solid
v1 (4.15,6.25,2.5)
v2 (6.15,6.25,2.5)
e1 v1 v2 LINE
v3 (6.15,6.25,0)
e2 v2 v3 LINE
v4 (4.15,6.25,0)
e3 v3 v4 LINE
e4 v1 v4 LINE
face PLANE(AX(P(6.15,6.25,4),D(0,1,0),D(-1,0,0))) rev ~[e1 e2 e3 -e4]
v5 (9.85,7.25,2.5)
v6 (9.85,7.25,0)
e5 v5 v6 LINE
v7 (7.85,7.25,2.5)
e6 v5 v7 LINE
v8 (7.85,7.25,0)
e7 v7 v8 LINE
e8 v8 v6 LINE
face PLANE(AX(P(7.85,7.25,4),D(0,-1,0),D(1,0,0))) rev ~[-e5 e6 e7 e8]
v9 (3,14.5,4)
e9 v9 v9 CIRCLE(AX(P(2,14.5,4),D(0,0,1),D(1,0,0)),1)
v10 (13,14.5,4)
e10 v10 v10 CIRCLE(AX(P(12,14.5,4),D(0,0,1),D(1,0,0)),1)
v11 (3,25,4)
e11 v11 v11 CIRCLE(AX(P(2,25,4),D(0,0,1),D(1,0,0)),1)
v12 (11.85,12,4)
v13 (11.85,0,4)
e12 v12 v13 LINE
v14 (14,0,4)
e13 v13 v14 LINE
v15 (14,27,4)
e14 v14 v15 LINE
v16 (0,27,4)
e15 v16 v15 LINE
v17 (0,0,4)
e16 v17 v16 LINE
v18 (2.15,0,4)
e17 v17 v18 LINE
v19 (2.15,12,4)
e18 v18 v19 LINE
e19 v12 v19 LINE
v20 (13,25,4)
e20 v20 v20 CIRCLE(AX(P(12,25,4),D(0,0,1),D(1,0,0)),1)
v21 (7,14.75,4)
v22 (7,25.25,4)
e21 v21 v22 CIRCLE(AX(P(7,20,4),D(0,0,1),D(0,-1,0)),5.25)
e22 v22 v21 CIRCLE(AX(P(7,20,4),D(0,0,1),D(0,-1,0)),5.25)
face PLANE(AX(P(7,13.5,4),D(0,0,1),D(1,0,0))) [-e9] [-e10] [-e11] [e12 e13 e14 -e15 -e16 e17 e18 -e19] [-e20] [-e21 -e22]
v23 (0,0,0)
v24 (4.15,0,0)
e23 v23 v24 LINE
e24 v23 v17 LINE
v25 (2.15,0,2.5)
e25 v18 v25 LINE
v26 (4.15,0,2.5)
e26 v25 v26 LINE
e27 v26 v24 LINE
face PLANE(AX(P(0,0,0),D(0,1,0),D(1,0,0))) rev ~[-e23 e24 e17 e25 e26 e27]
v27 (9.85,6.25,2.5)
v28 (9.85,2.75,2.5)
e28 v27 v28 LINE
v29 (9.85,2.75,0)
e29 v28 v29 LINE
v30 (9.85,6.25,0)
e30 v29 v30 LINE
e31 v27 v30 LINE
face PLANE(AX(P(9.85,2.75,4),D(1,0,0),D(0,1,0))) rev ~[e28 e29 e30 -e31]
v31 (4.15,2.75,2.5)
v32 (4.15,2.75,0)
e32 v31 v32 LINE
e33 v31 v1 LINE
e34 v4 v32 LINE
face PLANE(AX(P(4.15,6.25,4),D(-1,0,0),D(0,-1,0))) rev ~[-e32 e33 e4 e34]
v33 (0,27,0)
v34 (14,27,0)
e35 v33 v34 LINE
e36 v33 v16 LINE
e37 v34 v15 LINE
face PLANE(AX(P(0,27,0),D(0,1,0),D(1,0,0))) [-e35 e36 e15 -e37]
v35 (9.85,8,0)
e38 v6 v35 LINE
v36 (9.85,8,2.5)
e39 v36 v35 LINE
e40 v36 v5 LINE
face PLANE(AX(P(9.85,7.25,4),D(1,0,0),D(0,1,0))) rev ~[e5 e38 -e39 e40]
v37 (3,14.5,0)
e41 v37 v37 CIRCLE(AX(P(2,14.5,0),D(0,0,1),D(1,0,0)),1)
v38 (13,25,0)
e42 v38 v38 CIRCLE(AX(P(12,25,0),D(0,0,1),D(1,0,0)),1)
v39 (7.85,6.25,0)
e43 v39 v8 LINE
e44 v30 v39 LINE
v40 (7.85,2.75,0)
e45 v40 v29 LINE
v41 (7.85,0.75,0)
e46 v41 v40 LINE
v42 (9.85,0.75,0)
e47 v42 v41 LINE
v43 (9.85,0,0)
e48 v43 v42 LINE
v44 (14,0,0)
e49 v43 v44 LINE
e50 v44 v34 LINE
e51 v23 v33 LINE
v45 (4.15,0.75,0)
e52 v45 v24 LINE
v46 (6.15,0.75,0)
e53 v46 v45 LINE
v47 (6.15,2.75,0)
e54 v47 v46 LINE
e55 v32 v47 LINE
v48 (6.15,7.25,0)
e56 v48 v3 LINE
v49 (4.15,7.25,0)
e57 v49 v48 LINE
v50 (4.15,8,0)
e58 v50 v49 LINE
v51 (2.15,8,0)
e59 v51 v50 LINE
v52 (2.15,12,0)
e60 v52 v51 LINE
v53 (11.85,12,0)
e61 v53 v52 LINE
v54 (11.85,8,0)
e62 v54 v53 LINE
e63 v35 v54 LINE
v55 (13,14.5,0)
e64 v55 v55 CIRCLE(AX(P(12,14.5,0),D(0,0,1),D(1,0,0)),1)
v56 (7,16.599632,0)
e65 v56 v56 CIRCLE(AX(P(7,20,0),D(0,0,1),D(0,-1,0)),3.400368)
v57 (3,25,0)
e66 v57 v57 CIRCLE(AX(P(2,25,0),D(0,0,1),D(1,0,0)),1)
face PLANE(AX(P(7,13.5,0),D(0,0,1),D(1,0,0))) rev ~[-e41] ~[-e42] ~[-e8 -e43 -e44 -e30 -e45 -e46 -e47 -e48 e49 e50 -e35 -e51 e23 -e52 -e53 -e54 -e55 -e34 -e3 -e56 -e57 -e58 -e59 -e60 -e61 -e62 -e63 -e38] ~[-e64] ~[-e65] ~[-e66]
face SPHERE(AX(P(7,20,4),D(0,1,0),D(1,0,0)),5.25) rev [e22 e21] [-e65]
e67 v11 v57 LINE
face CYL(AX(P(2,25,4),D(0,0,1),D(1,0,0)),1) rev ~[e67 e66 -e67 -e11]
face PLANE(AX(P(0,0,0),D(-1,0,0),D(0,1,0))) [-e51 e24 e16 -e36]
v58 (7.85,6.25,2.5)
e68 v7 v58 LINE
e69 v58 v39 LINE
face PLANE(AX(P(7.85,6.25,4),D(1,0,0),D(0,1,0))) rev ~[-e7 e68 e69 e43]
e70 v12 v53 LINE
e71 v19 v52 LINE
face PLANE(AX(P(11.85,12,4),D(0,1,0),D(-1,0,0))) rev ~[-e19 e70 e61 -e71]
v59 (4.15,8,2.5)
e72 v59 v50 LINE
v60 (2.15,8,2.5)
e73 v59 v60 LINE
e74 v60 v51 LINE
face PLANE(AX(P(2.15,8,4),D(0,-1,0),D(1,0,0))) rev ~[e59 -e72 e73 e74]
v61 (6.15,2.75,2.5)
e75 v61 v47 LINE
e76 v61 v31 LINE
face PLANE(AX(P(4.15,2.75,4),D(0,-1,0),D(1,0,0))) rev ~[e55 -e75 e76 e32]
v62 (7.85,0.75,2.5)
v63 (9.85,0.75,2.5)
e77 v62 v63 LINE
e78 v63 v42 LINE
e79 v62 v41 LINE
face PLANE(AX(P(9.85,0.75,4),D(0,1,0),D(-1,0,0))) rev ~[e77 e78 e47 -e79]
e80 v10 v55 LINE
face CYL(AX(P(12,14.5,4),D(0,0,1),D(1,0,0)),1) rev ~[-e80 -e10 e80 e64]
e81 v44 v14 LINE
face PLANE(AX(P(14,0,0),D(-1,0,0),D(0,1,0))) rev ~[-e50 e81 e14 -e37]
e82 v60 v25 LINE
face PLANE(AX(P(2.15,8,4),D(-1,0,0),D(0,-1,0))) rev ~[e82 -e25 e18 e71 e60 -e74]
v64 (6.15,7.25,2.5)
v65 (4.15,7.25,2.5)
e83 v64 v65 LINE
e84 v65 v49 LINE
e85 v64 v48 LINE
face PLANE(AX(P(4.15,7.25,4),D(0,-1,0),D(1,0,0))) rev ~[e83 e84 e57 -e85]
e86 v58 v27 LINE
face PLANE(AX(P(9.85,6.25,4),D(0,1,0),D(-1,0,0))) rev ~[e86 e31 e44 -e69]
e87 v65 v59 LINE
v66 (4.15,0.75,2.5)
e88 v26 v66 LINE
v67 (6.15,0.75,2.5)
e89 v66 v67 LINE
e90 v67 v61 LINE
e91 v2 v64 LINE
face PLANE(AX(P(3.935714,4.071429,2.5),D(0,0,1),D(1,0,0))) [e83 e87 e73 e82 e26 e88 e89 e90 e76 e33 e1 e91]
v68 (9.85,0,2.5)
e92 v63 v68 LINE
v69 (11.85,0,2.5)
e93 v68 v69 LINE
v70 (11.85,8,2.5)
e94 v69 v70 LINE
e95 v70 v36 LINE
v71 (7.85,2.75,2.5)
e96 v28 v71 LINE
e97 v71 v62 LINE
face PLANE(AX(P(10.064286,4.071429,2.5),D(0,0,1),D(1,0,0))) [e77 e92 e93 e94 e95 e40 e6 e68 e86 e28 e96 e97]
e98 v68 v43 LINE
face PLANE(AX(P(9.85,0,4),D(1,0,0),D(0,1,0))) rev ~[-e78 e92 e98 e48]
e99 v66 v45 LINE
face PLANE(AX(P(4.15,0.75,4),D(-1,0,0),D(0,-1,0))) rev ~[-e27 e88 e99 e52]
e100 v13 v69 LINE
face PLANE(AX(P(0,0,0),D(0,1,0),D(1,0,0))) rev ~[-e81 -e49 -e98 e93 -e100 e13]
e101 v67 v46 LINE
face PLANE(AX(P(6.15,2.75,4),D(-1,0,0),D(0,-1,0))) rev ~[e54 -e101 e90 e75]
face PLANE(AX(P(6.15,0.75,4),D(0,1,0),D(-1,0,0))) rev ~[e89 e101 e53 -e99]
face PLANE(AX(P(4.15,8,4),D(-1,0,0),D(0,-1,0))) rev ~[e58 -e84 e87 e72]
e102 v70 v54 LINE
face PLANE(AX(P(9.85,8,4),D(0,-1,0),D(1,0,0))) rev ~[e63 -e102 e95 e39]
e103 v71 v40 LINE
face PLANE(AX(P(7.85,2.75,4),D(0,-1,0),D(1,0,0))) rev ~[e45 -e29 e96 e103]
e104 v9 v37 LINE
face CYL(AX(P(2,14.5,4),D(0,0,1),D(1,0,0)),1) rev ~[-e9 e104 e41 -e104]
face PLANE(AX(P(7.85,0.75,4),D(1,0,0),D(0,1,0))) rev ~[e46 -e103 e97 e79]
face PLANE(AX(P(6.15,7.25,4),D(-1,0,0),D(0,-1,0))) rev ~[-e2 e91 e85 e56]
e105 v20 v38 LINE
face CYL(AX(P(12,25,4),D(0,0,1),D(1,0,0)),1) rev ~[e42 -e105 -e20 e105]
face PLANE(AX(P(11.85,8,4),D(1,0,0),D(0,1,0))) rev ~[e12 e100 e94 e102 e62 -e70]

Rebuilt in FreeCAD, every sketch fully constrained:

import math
import FreeCAD as App
import Part
import Sketcher
Q = App.Units.Quantity

doc = App.newDocument("Part")
params = doc.addObject("Spreadsheet::Sheet", "Params")
for row, (alias, value) in enumerate([
    ("sketch1_width", "14 mm"),
    ("sketch1_height", "27 mm"),
    ("pad1_length", "4 mm"),
    ("sketch2_radius", "5.25 mm"),
    ("groove_angle", "360 deg"),
    ("sketch3_diameter", "2 mm"),
    ("pocket1_length", "4 mm"),
    ("sketch4_width", "2 mm"),
    ("sketch4_height", "4 mm"),
    ("sketch4_height2", "1 mm"),
    ("sketch4_width2", "5.7 mm"),
    ("sketch4_height3", "3.5 mm"),
    ("pocket2_length", "4 mm"),
    ("sketch5_width", "2 mm"),
    ("sketch5_height", "8 mm"),
    ("sketch5_height2", "1 mm"),
    ("sketch5_height3", "3.5 mm"),
    ("pocket3_length", "1.5 mm"),
], start=1):
    params.set(f"A{row}", alias)
    params.set(f"B{row}", "=" + value)
    params.setAlias(f"B{row}", alias)

body = doc.addObject("PartDesign::Body", "Body")

# Sketch on XY plane
sketch1 = body.newObject("Sketcher::SketchObject", "Sketch")
sketch1.AttachmentSupport = (doc.getObject("XY_Plane"), [""])
sketch1.MapMode = "FlatFace"
sketch1.addGeometry([
    Part.LineSegment(App.Vector(0, 27, 0), App.Vector(0, 0, 0)),
    Part.LineSegment(App.Vector(0, 0, 0), App.Vector(14, 0, 0)),
    Part.LineSegment(App.Vector(14, 0, 0), App.Vector(14, 27, 0)),
    Part.LineSegment(App.Vector(14, 27, 0), App.Vector(0, 27, 0)),
], False)
sketch1.addConstraint([
    Sketcher.Constraint("Coincident", 0, 2, 1, 1),
    Sketcher.Constraint("Coincident", 1, 2, 2, 1),
    Sketcher.Constraint("Coincident", 2, 2, 3, 1),
    Sketcher.Constraint("Coincident", 3, 2, 0, 1),
    Sketcher.Constraint("Vertical", 0),
    Sketcher.Constraint("Horizontal", 1),
    Sketcher.Constraint("Vertical", 2),
    Sketcher.Constraint("Horizontal", 3),
    Sketcher.Constraint("Coincident", 0, 2, -1, 1),
    Sketcher.Constraint("DistanceX", 1, 1, 1, 2, Q("14 mm")),
    Sketcher.Constraint("DistanceY", 0, 2, 0, 1, Q("27 mm")),
])
sketch1.setExpression("Constraints[9]", "Params.sketch1_width")
sketch1.setExpression("Constraints[10]", "Params.sketch1_height")
pad1 = body.newObject("PartDesign::Pad", "Pad")
pad1.Profile = sketch1
pad1.setExpression("Length", "Params.pad1_length")

# Sketch on XY plane
sketch2 = body.newObject("Sketcher::SketchObject", "Sketch001")
sketch2.AttachmentSupport = (doc.getObject("XY_Plane"), [""])
sketch2.MapMode = "FlatFace"
sketch2.AttachmentOffset = App.Placement(App.Vector(0, 0, 4), App.Rotation())
sketch2.addGeometry([
    Part.ArcOfCircle(Part.Circle(App.Vector(7, 20, 0), App.Vector(0, 0, 1), 5), math.radians(-90), math.radians(90)),
    Part.LineSegment(App.Vector(7, 25, 0), App.Vector(7, 15, 0)),
], False)
sketch2.addGeometry(Part.LineSegment(App.Vector(7, 25, 0), App.Vector(7, 15, 0)), True)  # axis
sketch2.addConstraint([
    Sketcher.Constraint("Coincident", 0, 1, 1, 2),
    Sketcher.Constraint("Coincident", 1, 1, 0, 2),
    Sketcher.Constraint("Vertical", 1),
    Sketcher.Constraint("Vertical", 2),
    Sketcher.Constraint("Coincident", 2, 1, 1, 1),
    Sketcher.Constraint("Equal", 1, 2),
    Sketcher.Constraint("Radius", 0, Q("5.25 mm")),
    Sketcher.Constraint("DistanceX", -1, 1, 0, 3, Q("7 mm")),
    Sketcher.Constraint("DistanceY", -1, 1, 0, 3, Q("20 mm")),
    Sketcher.Constraint("DistanceX", -1, 1, 0, 1, Q("7 mm")),
])
sketch2.setExpression("Constraints[6]", "Params.sketch2_radius")
groove = body.newObject("PartDesign::Groove", "Groove")
groove.Profile = sketch2
groove.ReferenceAxis = (sketch2, ["Axis0"])
groove.setExpression("Angle", "Params.groove_angle")

# Sketch on XY plane
sketch3 = body.newObject("Sketcher::SketchObject", "Sketch002")
sketch3.AttachmentSupport = (doc.getObject("XY_Plane"), [""])
sketch3.MapMode = "FlatFace"
sketch3.AttachmentOffset = App.Placement(App.Vector(0, 0, 4), App.Rotation())
sketch3.addGeometry([
    Part.Circle(App.Vector(2, 25, 0), App.Vector(0, 0, 1), 1),
    Part.Circle(App.Vector(12, 14.5, 0), App.Vector(0, 0, 1), 1),
    Part.Circle(App.Vector(12, 25, 0), App.Vector(0, 0, 1), 1),
    Part.Circle(App.Vector(2, 14.5, 0), App.Vector(0, 0, 1), 1),
], False)
sketch3.addConstraint([
    Sketcher.Constraint("Equal", 0, 1),
    Sketcher.Constraint("Equal", 1, 2),
    Sketcher.Constraint("Equal", 2, 3),
    Sketcher.Constraint("Horizontal", 0, 3, 2, 3),
    Sketcher.Constraint("Horizontal", 1, 3, 3, 3),
    Sketcher.Constraint("Vertical", 1, 3, 2, 3),
    Sketcher.Constraint("Vertical", 0, 3, 3, 3),
    Sketcher.Constraint("Diameter", 0, Q("2 mm")),
    Sketcher.Constraint("DistanceX", -1, 1, 0, 3, Q("2 mm")),
    Sketcher.Constraint("DistanceY", -1, 1, 0, 3, Q("25 mm")),
    Sketcher.Constraint("DistanceX", -1, 1, 1, 3, Q("12 mm")),
    Sketcher.Constraint("DistanceY", -1, 1, 1, 3, Q("14.5 mm")),
])
sketch3.setExpression("Constraints[7]", "Params.sketch3_diameter")
pocket1 = body.newObject("PartDesign::Pocket", "Pocket")
pocket1.Profile = sketch3
pocket1.setExpression("Length", "Params.pocket1_length")

# Sketch on XY plane
sketch4 = body.newObject("Sketcher::SketchObject", "Sketch003")
sketch4.AttachmentSupport = (doc.getObject("XY_Plane"), [""])
sketch4.MapMode = "FlatFace"
sketch4.AttachmentOffset = App.Placement(App.Vector(0, 0, 4), App.Rotation())
sketch4.addGeometry([
    Part.LineSegment(App.Vector(2.1, 12, 0), App.Vector(2.1, 8, 0)),  # 0
    Part.LineSegment(App.Vector(2.1, 8, 0), App.Vector(4.2, 8, 0)),  # 1
    Part.LineSegment(App.Vector(4.2, 8, 0), App.Vector(4.2, 7.2, 0)),  # 2
    Part.LineSegment(App.Vector(4.2, 7.2, 0), App.Vector(6.2, 7.2, 0)),  # 3
    Part.LineSegment(App.Vector(6.2, 7.2, 0), App.Vector(6.2, 6.2, 0)),  # 4
    Part.LineSegment(App.Vector(6.2, 6.2, 0), App.Vector(4.2, 6.2, 0)),  # 5
    Part.LineSegment(App.Vector(4.2, 6.2, 0), App.Vector(4.2, 2.8, 0)),  # 6
    Part.LineSegment(App.Vector(4.2, 2.8, 0), App.Vector(6.2, 2.8, 0)),  # 7
    Part.LineSegment(App.Vector(6.2, 2.8, 0), App.Vector(6.2, 0.8, 0)),  # 8
    Part.LineSegment(App.Vector(6.2, 0.8, 0), App.Vector(4.2, 0.8, 0)),  # 9
    Part.LineSegment(App.Vector(4.2, 0.8, 0), App.Vector(4.2, 0, 0)),  # 10
    Part.LineSegment(App.Vector(4.2, 0, 0), App.Vector(9.8, 0, 0)),  # 11
    Part.LineSegment(App.Vector(9.8, 0, 0), App.Vector(9.8, 0.8, 0)),  # 12
    Part.LineSegment(App.Vector(9.8, 0.8, 0), App.Vector(7.8, 0.8, 0)),  # 13
    Part.LineSegment(App.Vector(7.8, 0.8, 0), App.Vector(7.8, 2.8, 0)),  # 14
    Part.LineSegment(App.Vector(7.8, 2.8, 0), App.Vector(9.8, 2.8, 0)),  # 15
    Part.LineSegment(App.Vector(9.8, 2.8, 0), App.Vector(9.8, 6.2, 0)),  # 16
    Part.LineSegment(App.Vector(9.8, 6.2, 0), App.Vector(7.8, 6.2, 0)),  # 17
    Part.LineSegment(App.Vector(7.8, 6.2, 0), App.Vector(7.8, 7.2, 0)),  # 18
    Part.LineSegment(App.Vector(7.8, 7.2, 0), App.Vector(9.8, 7.2, 0)),  # 19
    Part.LineSegment(App.Vector(9.8, 7.2, 0), App.Vector(9.8, 8, 0)),  # 20
    Part.LineSegment(App.Vector(9.8, 8, 0), App.Vector(11.8, 8, 0)),  # 21
    Part.LineSegment(App.Vector(11.8, 8, 0), App.Vector(11.8, 12, 0)),  # 22
    Part.LineSegment(App.Vector(11.8, 12, 0), App.Vector(2.1, 12, 0)),  # 23
], False)
sketch4.addConstraint([
    Sketcher.Constraint("Coincident", 0, 2, 1, 1),
    Sketcher.Constraint("Coincident", 1, 2, 2, 1),
    Sketcher.Constraint("Coincident", 2, 2, 3, 1),
    Sketcher.Constraint("Coincident", 3, 2, 4, 1),
    Sketcher.Constraint("Coincident", 4, 2, 5, 1),
    Sketcher.Constraint("Coincident", 5, 2, 6, 1),
    Sketcher.Constraint("Coincident", 6, 2, 7, 1),
    Sketcher.Constraint("Coincident", 7, 2, 8, 1),
    Sketcher.Constraint("Coincident", 8, 2, 9, 1),
    Sketcher.Constraint("Coincident", 9, 2, 10, 1),
    Sketcher.Constraint("Coincident", 10, 2, 11, 1),
    Sketcher.Constraint("Coincident", 11, 2, 12, 1),
    Sketcher.Constraint("Coincident", 12, 2, 13, 1),
    Sketcher.Constraint("Coincident", 13, 2, 14, 1),
    Sketcher.Constraint("Coincident", 14, 2, 15, 1),
    Sketcher.Constraint("Coincident", 15, 2, 16, 1),
    Sketcher.Constraint("Coincident", 16, 2, 17, 1),
    Sketcher.Constraint("Coincident", 17, 2, 18, 1),
    Sketcher.Constraint("Coincident", 18, 2, 19, 1),
    Sketcher.Constraint("Coincident", 19, 2, 20, 1),
    Sketcher.Constraint("Coincident", 20, 2, 21, 1),
    Sketcher.Constraint("Coincident", 21, 2, 22, 1),
    Sketcher.Constraint("Coincident", 22, 2, 23, 1),
    Sketcher.Constraint("Coincident", 23, 2, 0, 1),
    Sketcher.Constraint("Vertical", 0),
    Sketcher.Constraint("Horizontal", 1),
    Sketcher.Constraint("Vertical", 2),
    Sketcher.Constraint("Horizontal", 3),
    Sketcher.Constraint("Vertical", 4),
    Sketcher.Constraint("Horizontal", 5),
    Sketcher.Constraint("Vertical", 6),
    Sketcher.Constraint("Horizontal", 7),
    Sketcher.Constraint("Vertical", 8),
    Sketcher.Constraint("Horizontal", 9),
    Sketcher.Constraint("Vertical", 10),
    Sketcher.Constraint("Horizontal", 11),
    Sketcher.Constraint("Vertical", 12),
    Sketcher.Constraint("Horizontal", 13),
    Sketcher.Constraint("Vertical", 14),
    Sketcher.Constraint("Horizontal", 15),
    Sketcher.Constraint("Vertical", 16),
    Sketcher.Constraint("Horizontal", 17),
    Sketcher.Constraint("Vertical", 18),
    Sketcher.Constraint("Horizontal", 19),
    Sketcher.Constraint("Vertical", 20),
    Sketcher.Constraint("Horizontal", 21),
    Sketcher.Constraint("Vertical", 22),
    Sketcher.Constraint("Horizontal", 23),
    Sketcher.Constraint("PointOnObject", 10, 2, -1),
    Sketcher.Constraint("Horizontal", 9, 2, 12, 2),
    Sketcher.Constraint("Horizontal", 7, 2, 14, 2),
    Sketcher.Constraint("Horizontal", 5, 2, 16, 2),
    Sketcher.Constraint("Horizontal", 3, 2, 18, 2),
    Sketcher.Constraint("Horizontal", 1, 2, 20, 2),
    Sketcher.Constraint("Vertical", 2, 2, 5, 2),
    Sketcher.Constraint("Vertical", 4, 2, 7, 2),
    Sketcher.Constraint("Vertical", 6, 2, 9, 2),
    Sketcher.Constraint("Vertical", 12, 2, 15, 2),
    Sketcher.Constraint("Vertical", 14, 2, 17, 2),
    Sketcher.Constraint("Vertical", 16, 2, 19, 2),
    Sketcher.Constraint("Equal", 1, 3),
    Sketcher.Constraint("Equal", 9, 13),
    Sketcher.Constraint("Equal", 19, 21),
    Sketcher.Constraint("Equal", 21, 8),
    Sketcher.Constraint("Equal", 2, 10),
    Sketcher.Constraint("DistanceX", 1, 1, 1, 2, Q("2 mm")),
    Sketcher.Constraint("DistanceY", 0, 2, 0, 1, Q("4 mm")),
    Sketcher.Constraint("DistanceY", 4, 2, 4, 1, Q("1 mm")),
    Sketcher.Constraint("DistanceX", 11, 1, 11, 2, Q("5.7 mm")),
    Sketcher.Constraint("DistanceY", 6, 2, 6, 1, Q("3.5 mm")),
    Sketcher.Constraint("DistanceY", -1, 1, 0, 2, Q("8 mm")),
    Sketcher.Constraint("DistanceX", -1, 1, 0, 2, Q("2.15 mm")),
])
sketch4.setExpression("Constraints[65]", "Params.sketch4_width")
sketch4.setExpression("Constraints[66]", "Params.sketch4_height")
sketch4.setExpression("Constraints[67]", "Params.sketch4_height2")
sketch4.setExpression("Constraints[68]", "Params.sketch4_width2")
sketch4.setExpression("Constraints[69]", "Params.sketch4_height3")
pocket2 = body.newObject("PartDesign::Pocket", "Pocket001")
pocket2.Profile = sketch4
pocket2.setExpression("Length", "Params.pocket2_length")

# Sketch on XY plane
sketch5 = body.newObject("Sketcher::SketchObject", "Sketch004")
sketch5.AttachmentSupport = (doc.getObject("XY_Plane"), [""])
sketch5.MapMode = "FlatFace"
sketch5.AttachmentOffset = App.Placement(App.Vector(0, 0, 4), App.Rotation())
sketch5.addGeometry([
    Part.LineSegment(App.Vector(2.1, 8, 0), App.Vector(2.1, 0, 0)),  # 0
    Part.LineSegment(App.Vector(2.1, 0, 0), App.Vector(4.2, 0, 0)),  # 1
    Part.LineSegment(App.Vector(4.2, 0, 0), App.Vector(4.2, 0.8, 0)),  # 2
    Part.LineSegment(App.Vector(4.2, 0.8, 0), App.Vector(6.2, 0.8, 0)),  # 3
    Part.LineSegment(App.Vector(6.2, 0.8, 0), App.Vector(6.2, 2.8, 0)),  # 4
    Part.LineSegment(App.Vector(6.2, 2.8, 0), App.Vector(4.2, 2.8, 0)),  # 5
    Part.LineSegment(App.Vector(4.2, 2.8, 0), App.Vector(4.2, 6.2, 0)),  # 6
    Part.LineSegment(App.Vector(4.2, 6.2, 0), App.Vector(6.2, 6.2, 0)),  # 7
    Part.LineSegment(App.Vector(6.2, 6.2, 0), App.Vector(6.2, 7.2, 0)),  # 8
    Part.LineSegment(App.Vector(6.2, 7.2, 0), App.Vector(4.2, 7.2, 0)),  # 9
    Part.LineSegment(App.Vector(4.2, 7.2, 0), App.Vector(4.2, 8, 0)),  # 10
    Part.LineSegment(App.Vector(4.2, 8, 0), App.Vector(2.1, 8, 0)),  # 11
    Part.LineSegment(App.Vector(9.8, 0.8, 0), App.Vector(9.8, 0, 0)),  # 12
    Part.LineSegment(App.Vector(9.8, 0, 0), App.Vector(11.8, 0, 0)),  # 13
    Part.LineSegment(App.Vector(11.8, 0, 0), App.Vector(11.8, 8, 0)),  # 14
    Part.LineSegment(App.Vector(11.8, 8, 0), App.Vector(9.8, 8, 0)),  # 15
    Part.LineSegment(App.Vector(9.8, 8, 0), App.Vector(9.8, 7.2, 0)),  # 16
    Part.LineSegment(App.Vector(9.8, 7.2, 0), App.Vector(7.8, 7.2, 0)),  # 17
    Part.LineSegment(App.Vector(7.8, 7.2, 0), App.Vector(7.8, 6.2, 0)),  # 18
    Part.LineSegment(App.Vector(7.8, 6.2, 0), App.Vector(9.8, 6.2, 0)),  # 19
    Part.LineSegment(App.Vector(9.8, 6.2, 0), App.Vector(9.8, 2.8, 0)),  # 20
    Part.LineSegment(App.Vector(9.8, 2.8, 0), App.Vector(7.8, 2.8, 0)),  # 21
    Part.LineSegment(App.Vector(7.8, 2.8, 0), App.Vector(7.8, 0.8, 0)),  # 22
    Part.LineSegment(App.Vector(7.8, 0.8, 0), App.Vector(9.8, 0.8, 0)),  # 23
], False)
sketch5.addConstraint([
    Sketcher.Constraint("Coincident", 0, 2, 1, 1),
    Sketcher.Constraint("Coincident", 1, 2, 2, 1),
    Sketcher.Constraint("Coincident", 2, 2, 3, 1),
    Sketcher.Constraint("Coincident", 3, 2, 4, 1),
    Sketcher.Constraint("Coincident", 4, 2, 5, 1),
    Sketcher.Constraint("Coincident", 5, 2, 6, 1),
    Sketcher.Constraint("Coincident", 6, 2, 7, 1),
    Sketcher.Constraint("Coincident", 7, 2, 8, 1),
    Sketcher.Constraint("Coincident", 8, 2, 9, 1),
    Sketcher.Constraint("Coincident", 9, 2, 10, 1),
    Sketcher.Constraint("Coincident", 10, 2, 11, 1),
    Sketcher.Constraint("Coincident", 11, 2, 0, 1),
    Sketcher.Constraint("Coincident", 12, 2, 13, 1),
    Sketcher.Constraint("Coincident", 13, 2, 14, 1),
    Sketcher.Constraint("Coincident", 14, 2, 15, 1),
    Sketcher.Constraint("Coincident", 15, 2, 16, 1),
    Sketcher.Constraint("Coincident", 16, 2, 17, 1),
    Sketcher.Constraint("Coincident", 17, 2, 18, 1),
    Sketcher.Constraint("Coincident", 18, 2, 19, 1),
    Sketcher.Constraint("Coincident", 19, 2, 20, 1),
    Sketcher.Constraint("Coincident", 20, 2, 21, 1),
    Sketcher.Constraint("Coincident", 21, 2, 22, 1),
    Sketcher.Constraint("Coincident", 22, 2, 23, 1),
    Sketcher.Constraint("Coincident", 23, 2, 12, 1),
    Sketcher.Constraint("Vertical", 0),
    Sketcher.Constraint("Horizontal", 1),
    Sketcher.Constraint("Vertical", 2),
    Sketcher.Constraint("Horizontal", 3),
    Sketcher.Constraint("Vertical", 4),
    Sketcher.Constraint("Horizontal", 5),
    Sketcher.Constraint("Vertical", 6),
    Sketcher.Constraint("Horizontal", 7),
    Sketcher.Constraint("Vertical", 8),
    Sketcher.Constraint("Horizontal", 9),
    Sketcher.Constraint("Vertical", 10),
    Sketcher.Constraint("Horizontal", 11),
    Sketcher.Constraint("Vertical", 12),
    Sketcher.Constraint("Horizontal", 13),
    Sketcher.Constraint("Vertical", 14),
    Sketcher.Constraint("Horizontal", 15),
    Sketcher.Constraint("Vertical", 16),
    Sketcher.Constraint("Horizontal", 17),
    Sketcher.Constraint("Vertical", 18),
    Sketcher.Constraint("Horizontal", 19),
    Sketcher.Constraint("Vertical", 20),
    Sketcher.Constraint("Horizontal", 21),
    Sketcher.Constraint("Vertical", 22),
    Sketcher.Constraint("Horizontal", 23),
    Sketcher.Constraint("PointOnObject", 0, 2, -1),
    Sketcher.Constraint("PointOnObject", 12, 2, -1),
    Sketcher.Constraint("Horizontal", 11, 2, 14, 2),
    Sketcher.Constraint("Horizontal", 9, 2, 16, 2),
    Sketcher.Constraint("Horizontal", 7, 2, 18, 2),
    Sketcher.Constraint("Horizontal", 5, 2, 20, 2),
    Sketcher.Constraint("Horizontal", 3, 2, 22, 2),
    Sketcher.Constraint("Vertical", 2, 2, 5, 2),
    Sketcher.Constraint("Vertical", 4, 2, 7, 2),
    Sketcher.Constraint("Vertical", 6, 2, 9, 2),
    Sketcher.Constraint("Vertical", 12, 2, 15, 2),
    Sketcher.Constraint("Vertical", 16, 2, 19, 2),
    Sketcher.Constraint("Vertical", 18, 2, 21, 2),
    Sketcher.Constraint("Equal", 1, 3),
    Sketcher.Constraint("Equal", 11, 13),
    Sketcher.Constraint("Equal", 15, 17),
    Sketcher.Constraint("Equal", 23, 4),
    Sketcher.Constraint("Equal", 2, 10),
    Sketcher.Constraint("DistanceX", 1, 1, 1, 2, Q("2 mm")),
    Sketcher.Constraint("DistanceY", 0, 2, 0, 1, Q("8 mm")),
    Sketcher.Constraint("DistanceY", 8, 1, 8, 2, Q("1 mm")),
    Sketcher.Constraint("DistanceY", 6, 1, 6, 2, Q("3.5 mm")),
    Sketcher.Constraint("DistanceX", 3, 2, 12, 2, Q("3.7 mm")),
    Sketcher.Constraint("DistanceX", -1, 1, 0, 2, Q("2.15 mm")),
])
sketch5.setExpression("Constraints[66]", "Params.sketch5_width")
sketch5.setExpression("Constraints[67]", "Params.sketch5_height")
sketch5.setExpression("Constraints[68]", "Params.sketch5_height2")
sketch5.setExpression("Constraints[69]", "Params.sketch5_height3")
pocket3 = body.newObject("PartDesign::Pocket", "Pocket002")
pocket3.Profile = sketch5
pocket3.setExpression("Length", "Params.pocket3_length")

doc.recompute()
